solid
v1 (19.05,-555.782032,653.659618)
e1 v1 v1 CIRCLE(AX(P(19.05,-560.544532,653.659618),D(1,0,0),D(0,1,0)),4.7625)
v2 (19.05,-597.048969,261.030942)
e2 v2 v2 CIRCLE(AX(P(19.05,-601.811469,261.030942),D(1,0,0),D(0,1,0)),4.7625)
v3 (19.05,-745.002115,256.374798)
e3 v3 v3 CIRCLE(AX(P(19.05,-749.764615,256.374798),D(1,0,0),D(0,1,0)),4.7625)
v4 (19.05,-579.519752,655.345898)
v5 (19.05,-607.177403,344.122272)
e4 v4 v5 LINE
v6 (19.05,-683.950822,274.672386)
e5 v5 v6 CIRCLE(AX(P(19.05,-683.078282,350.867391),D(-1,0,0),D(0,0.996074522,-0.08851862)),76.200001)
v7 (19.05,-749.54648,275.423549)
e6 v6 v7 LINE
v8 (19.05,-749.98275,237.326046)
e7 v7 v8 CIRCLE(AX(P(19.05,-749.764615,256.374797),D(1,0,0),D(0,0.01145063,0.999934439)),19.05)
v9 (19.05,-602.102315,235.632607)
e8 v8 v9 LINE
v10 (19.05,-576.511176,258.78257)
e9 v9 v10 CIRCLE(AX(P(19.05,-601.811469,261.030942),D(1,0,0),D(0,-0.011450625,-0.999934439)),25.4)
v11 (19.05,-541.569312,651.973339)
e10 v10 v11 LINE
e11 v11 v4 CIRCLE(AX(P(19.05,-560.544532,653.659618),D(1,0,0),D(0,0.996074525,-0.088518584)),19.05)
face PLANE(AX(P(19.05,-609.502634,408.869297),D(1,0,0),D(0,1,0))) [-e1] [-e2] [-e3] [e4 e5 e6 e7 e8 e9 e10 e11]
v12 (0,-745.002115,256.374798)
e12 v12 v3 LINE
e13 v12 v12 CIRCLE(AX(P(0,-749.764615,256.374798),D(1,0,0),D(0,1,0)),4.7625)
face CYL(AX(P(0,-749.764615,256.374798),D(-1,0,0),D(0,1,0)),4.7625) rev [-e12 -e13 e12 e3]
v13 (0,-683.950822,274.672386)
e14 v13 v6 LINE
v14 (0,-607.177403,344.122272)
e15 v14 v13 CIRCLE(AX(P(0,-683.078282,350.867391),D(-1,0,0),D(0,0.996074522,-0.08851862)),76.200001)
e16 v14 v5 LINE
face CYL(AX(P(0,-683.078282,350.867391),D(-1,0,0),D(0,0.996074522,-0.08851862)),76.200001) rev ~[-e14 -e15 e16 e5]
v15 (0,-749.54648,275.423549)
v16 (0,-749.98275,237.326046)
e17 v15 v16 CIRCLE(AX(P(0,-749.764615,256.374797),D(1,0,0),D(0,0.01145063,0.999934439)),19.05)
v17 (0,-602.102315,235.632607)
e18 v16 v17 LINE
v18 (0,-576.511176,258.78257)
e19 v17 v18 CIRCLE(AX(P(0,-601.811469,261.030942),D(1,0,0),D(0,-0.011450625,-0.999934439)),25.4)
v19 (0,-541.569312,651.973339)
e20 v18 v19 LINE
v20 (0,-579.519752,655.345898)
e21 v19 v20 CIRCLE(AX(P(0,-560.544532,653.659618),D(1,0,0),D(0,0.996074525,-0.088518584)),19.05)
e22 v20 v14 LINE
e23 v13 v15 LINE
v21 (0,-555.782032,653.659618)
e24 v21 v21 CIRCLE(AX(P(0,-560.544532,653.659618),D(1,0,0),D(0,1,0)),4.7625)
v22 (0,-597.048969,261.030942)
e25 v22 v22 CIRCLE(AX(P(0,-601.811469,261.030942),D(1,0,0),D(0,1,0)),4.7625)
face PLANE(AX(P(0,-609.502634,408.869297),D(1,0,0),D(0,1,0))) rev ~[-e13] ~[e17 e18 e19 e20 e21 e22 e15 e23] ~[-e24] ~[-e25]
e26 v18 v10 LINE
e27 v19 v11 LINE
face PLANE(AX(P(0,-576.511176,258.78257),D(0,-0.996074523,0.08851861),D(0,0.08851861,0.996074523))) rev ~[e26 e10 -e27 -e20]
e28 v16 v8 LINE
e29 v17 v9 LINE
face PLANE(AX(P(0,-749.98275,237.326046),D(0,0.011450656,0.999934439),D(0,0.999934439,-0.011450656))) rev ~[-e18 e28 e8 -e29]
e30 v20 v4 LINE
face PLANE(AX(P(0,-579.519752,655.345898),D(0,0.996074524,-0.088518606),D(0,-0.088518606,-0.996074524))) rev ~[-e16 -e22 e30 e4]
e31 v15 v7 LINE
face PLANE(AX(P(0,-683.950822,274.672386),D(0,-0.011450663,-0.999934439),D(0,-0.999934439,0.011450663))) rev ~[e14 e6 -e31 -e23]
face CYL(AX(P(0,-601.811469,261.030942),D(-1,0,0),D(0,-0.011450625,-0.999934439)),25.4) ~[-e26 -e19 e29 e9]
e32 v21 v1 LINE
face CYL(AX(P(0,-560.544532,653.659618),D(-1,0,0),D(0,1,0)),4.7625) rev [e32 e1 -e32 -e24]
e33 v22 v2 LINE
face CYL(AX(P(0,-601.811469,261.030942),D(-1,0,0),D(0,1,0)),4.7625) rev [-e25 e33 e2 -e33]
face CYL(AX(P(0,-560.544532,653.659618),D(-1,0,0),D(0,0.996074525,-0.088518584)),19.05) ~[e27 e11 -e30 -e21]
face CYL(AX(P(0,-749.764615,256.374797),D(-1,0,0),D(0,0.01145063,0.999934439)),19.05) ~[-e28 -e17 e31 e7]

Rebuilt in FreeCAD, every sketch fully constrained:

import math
import FreeCAD as App
import Part
import Sketcher
Q = App.Units.Quantity

doc = App.newDocument("Part")
body = doc.addObject("PartDesign::Body", "Body")

sketch1 = body.newObject("Sketcher::SketchObject", "Sketch")
sketch1.AttachmentSupport = (doc.getObject("YZ_Plane"), [""])
sketch1.MapMode = "FlatFace"
sketch1.addGeometry([
    Part.ArcOfCircle(Part.Circle(App.Vector(-749.8, 256.4, 0), App.Vector(0, 0, 1), 19.1), math.radians(89), math.radians(269)),
    Part.LineSegment(App.Vector(-750, 237.3, 0), App.Vector(-602.1, 235.6, 0)),
    Part.ArcOfCircle(Part.Circle(App.Vector(-601.8, 261, 0), App.Vector(0, 0, 1), 25.4), math.radians(-91), math.radians(-5)),
    Part.LineSegment(App.Vector(-576.5, 258.8, 0), App.Vector(-541.6, 652, 0)),
    Part.ArcOfCircle(Part.Circle(App.Vector(-560.5, 653.7, 0), App.Vector(0, 0, 1), 19.1), math.radians(-5), math.radians(175)),
    Part.LineSegment(App.Vector(-579.5, 655.3, 0), App.Vector(-607.2, 344.1, 0)),
    Part.ArcOfCircle(Part.Circle(App.Vector(-683.1, 350.9, 0), App.Vector(0, 0, 1), 76.2), math.radians(-91), math.radians(-5)),
    Part.LineSegment(App.Vector(-684, 274.7, 0), App.Vector(-749.5, 275.4, 0)),
    Part.Circle(App.Vector(-749.8, 256.4, 0), App.Vector(0, 0, 1), 4.8),
    Part.Circle(App.Vector(-601.8, 261, 0), App.Vector(0, 0, 1), 4.8),
    Part.Circle(App.Vector(-560.5, 653.7, 0), App.Vector(0, 0, 1), 4.8),
], False)
sketch1.addConstraint([
    Sketcher.Constraint("Tangent", 0, 2, 1, 1),
    Sketcher.Constraint("Tangent", 1, 2, 2, 1),
    Sketcher.Constraint("Tangent", 2, 2, 3, 1),
    Sketcher.Constraint("Tangent", 3, 2, 4, 1),
    Sketcher.Constraint("Tangent", 4, 2, 5, 1),
    Sketcher.Constraint("Tangent", 5, 2, 6, 2),
    Sketcher.Constraint("Tangent", 6, 1, 7, 1),
    Sketcher.Constraint("Tangent", 7, 2, 0, 1),
    Sketcher.Constraint("Coincident", 8, 3, 0, 3),
    Sketcher.Constraint("Coincident", 9, 3, 2, 3),
    Sketcher.Constraint("Coincident", 10, 3, 4, 3),
    Sketcher.Constraint("Equal", 0, 4),
    Sketcher.Constraint("Equal", 8, 9),
    Sketcher.Constraint("Equal", 9, 10),
    Sketcher.Constraint("Parallel", 3, 5),
    Sketcher.Constraint("Parallel", 1, 7),
    Sketcher.Constraint("Radius", 2, Q("1 in")),
    Sketcher.Constraint("Radius", 6, Q("3 in")),
    Sketcher.Constraint("Radius", 0, Q("0.75 in")),
    Sketcher.Constraint("Diameter", 8, Q("0.375 in")),
    Sketcher.Constraint("DistanceY", -1, 1, 8, 3, Q("256.374798 mm")),
    Sketcher.Constraint("DistanceY", -1, 1, 4, 2, Q("655.345898 mm")),
    Sketcher.Constraint("DistanceX", 0, 3, 1, 2, Q("147.6623 mm")),
    Sketcher.Constraint("DistanceY", 2, 2, 5, 2, Q("85.339702 mm")),
    Sketcher.Constraint("Distance", 1, Q("147.890131 mm")),
    Sketcher.Constraint("DistanceX", 2, 3, -1, 1, Q("601.811469 mm")),
])
pad1 = body.newObject("PartDesign::Pad", "Pad")
pad1.Profile = sketch1
pad1.Length = Q("0.75 in")

doc.recompute()
